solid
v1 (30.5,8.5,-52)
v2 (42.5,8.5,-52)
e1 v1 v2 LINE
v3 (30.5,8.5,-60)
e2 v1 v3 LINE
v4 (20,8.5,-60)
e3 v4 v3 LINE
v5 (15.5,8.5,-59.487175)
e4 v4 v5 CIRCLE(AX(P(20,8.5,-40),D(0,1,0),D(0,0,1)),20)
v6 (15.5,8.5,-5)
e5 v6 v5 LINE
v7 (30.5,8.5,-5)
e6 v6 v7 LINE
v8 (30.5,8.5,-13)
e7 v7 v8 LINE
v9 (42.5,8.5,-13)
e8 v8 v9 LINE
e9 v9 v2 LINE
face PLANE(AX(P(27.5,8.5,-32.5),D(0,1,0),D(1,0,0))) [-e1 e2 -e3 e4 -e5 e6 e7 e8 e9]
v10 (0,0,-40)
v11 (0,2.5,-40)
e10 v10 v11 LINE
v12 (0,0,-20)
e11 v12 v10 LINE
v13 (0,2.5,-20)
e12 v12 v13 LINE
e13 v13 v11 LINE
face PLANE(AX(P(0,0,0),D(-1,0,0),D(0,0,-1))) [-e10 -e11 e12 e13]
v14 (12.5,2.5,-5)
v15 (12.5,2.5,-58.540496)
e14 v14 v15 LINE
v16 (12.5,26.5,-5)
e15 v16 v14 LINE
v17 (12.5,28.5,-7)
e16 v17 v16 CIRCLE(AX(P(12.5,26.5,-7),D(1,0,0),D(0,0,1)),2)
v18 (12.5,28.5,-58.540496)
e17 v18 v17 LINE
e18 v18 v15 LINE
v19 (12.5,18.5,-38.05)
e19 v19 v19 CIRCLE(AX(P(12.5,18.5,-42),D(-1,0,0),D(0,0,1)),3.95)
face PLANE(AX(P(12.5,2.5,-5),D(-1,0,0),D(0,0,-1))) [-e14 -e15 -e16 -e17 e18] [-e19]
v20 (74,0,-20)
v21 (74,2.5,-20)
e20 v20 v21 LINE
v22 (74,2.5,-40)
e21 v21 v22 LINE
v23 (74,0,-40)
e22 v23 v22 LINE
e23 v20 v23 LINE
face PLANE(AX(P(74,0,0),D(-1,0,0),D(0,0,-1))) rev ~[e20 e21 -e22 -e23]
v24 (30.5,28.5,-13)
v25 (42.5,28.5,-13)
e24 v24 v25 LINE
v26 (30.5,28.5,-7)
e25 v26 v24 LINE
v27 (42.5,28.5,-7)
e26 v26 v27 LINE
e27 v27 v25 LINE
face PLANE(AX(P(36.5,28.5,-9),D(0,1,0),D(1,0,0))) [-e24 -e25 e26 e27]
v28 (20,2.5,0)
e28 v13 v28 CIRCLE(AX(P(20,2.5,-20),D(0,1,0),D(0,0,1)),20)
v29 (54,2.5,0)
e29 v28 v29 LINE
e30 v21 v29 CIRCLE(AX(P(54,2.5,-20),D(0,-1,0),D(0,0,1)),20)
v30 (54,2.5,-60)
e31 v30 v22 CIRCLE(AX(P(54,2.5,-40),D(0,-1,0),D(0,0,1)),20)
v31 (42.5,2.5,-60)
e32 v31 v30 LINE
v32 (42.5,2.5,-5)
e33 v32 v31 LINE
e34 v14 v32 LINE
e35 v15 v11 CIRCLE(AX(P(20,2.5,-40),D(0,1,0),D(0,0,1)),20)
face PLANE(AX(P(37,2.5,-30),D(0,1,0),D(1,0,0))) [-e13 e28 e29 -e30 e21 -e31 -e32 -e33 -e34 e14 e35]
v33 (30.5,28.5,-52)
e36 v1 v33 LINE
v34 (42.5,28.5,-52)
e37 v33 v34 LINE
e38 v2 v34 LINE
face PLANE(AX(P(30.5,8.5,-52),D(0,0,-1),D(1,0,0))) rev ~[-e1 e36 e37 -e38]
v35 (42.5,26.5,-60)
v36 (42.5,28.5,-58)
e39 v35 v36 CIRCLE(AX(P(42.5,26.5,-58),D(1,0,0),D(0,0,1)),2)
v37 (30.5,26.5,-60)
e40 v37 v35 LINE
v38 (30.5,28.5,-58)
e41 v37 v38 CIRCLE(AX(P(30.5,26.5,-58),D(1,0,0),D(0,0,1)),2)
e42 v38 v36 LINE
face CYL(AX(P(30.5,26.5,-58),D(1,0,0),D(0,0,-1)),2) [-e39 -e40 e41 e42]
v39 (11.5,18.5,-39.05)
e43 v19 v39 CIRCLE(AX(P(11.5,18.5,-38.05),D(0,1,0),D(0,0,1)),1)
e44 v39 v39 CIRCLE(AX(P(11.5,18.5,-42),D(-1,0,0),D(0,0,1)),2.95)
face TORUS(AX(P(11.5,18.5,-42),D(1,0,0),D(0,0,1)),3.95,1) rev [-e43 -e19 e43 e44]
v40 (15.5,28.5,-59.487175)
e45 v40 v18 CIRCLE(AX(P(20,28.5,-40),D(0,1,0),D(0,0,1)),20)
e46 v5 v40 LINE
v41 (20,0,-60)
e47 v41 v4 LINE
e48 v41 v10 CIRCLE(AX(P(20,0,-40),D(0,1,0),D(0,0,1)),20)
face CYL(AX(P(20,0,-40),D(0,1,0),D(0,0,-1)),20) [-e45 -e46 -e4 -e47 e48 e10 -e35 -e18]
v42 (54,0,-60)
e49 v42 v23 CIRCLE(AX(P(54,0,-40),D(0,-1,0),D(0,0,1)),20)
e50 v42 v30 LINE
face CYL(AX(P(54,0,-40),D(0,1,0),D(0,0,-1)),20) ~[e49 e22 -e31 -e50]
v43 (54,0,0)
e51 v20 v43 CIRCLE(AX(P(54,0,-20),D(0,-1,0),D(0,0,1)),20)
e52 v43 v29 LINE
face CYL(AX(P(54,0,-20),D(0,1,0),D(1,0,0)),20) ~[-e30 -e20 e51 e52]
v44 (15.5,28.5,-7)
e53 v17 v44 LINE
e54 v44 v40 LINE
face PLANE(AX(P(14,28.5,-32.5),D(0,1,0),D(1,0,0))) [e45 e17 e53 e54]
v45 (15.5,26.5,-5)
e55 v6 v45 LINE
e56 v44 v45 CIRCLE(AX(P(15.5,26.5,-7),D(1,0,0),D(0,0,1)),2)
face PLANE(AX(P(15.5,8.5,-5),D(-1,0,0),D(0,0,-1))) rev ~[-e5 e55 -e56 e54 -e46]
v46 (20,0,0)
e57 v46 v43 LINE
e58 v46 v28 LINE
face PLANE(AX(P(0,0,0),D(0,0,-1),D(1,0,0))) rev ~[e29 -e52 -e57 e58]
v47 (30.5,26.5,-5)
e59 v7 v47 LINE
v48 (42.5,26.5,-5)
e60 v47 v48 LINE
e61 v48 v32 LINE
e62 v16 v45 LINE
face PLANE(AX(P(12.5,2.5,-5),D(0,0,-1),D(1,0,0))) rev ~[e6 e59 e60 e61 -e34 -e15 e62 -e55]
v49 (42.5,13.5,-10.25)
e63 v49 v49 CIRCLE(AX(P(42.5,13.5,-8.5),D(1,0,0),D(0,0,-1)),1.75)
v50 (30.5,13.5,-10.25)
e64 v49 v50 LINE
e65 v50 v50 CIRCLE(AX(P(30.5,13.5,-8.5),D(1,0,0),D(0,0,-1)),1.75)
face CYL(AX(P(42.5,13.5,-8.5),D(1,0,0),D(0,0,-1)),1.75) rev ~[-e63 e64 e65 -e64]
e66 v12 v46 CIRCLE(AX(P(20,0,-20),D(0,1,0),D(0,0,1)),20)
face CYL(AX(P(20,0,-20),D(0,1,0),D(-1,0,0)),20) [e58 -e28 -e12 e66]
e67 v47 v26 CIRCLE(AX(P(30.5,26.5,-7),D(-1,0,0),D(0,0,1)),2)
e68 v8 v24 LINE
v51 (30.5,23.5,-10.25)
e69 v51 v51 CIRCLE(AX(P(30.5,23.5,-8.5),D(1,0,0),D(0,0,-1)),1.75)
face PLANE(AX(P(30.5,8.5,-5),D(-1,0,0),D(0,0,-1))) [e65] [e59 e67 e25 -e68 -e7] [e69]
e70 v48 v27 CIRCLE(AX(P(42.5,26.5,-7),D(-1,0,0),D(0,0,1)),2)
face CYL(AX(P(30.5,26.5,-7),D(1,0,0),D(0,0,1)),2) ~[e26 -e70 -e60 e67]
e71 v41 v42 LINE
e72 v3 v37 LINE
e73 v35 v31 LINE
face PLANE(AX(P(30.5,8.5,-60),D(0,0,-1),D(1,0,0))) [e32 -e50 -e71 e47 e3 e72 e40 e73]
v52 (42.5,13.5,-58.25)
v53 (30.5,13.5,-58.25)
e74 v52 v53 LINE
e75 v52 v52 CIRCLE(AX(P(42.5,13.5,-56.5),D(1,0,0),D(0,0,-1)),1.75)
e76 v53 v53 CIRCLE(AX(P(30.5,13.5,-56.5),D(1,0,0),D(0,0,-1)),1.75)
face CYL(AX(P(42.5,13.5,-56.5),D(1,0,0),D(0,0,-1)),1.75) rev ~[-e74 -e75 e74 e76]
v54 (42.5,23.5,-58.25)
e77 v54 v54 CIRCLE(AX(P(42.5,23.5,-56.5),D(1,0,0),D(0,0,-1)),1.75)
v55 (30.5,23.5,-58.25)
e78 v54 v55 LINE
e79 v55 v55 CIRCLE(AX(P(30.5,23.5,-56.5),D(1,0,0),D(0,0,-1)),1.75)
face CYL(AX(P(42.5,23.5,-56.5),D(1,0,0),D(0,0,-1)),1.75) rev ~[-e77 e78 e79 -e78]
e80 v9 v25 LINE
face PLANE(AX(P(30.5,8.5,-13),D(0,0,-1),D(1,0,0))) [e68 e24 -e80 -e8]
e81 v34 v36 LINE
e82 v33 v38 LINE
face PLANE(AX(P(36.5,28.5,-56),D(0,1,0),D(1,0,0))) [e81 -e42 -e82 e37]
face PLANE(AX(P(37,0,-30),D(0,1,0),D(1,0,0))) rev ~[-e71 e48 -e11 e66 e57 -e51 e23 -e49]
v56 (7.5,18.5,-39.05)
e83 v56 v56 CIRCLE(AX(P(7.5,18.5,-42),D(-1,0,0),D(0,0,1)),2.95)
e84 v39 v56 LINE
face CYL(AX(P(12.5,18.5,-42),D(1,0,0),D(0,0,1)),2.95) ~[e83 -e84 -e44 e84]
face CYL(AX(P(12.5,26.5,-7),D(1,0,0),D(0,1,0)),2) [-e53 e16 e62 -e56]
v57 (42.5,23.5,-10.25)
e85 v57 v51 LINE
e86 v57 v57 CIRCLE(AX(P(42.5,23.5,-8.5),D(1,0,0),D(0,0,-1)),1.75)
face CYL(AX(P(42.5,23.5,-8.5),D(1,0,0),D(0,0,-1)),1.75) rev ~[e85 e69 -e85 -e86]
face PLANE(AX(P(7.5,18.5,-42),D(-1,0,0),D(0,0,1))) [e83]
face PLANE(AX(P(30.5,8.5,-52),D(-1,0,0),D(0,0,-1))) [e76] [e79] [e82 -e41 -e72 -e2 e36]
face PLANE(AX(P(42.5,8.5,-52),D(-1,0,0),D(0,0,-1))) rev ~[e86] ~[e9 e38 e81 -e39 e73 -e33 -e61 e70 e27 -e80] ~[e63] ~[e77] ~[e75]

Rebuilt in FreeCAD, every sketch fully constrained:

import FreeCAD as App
import Part
import Sketcher

V = App.Vector
Q = App.Units.Quantity


def edges_at(feature, points):
    """Names of the edges that pass closest to the given points."""
    edges = feature.Shape.Edges
    near = lambda p: min(range(len(edges)), key=lambda i: edges[i].distToShape(Part.Vertex(*p))[0])
    return sorted({f"Edge{near(p) + 1}" for p in points})

doc = App.newDocument("Part")
body = doc.addObject("PartDesign::Body", "Body")

# Sketch on XZ plane
sketch1 = body.newObject("Sketcher::SketchObject", "Sketch")
sketch1.AttachmentSupport = (doc.getObject("XZ_Plane"), [""])
sketch1.MapMode = "FlatFace"
sketch1.addGeometry(Part.LineSegment(V(0, -60, 0), V(0, 0, 0)), False)
sketch1.addGeometry(Part.LineSegment(V(0, 0, 0), V(74, 0, 0)), False)
sketch1.addGeometry(Part.LineSegment(V(74, 0, 0), V(74, -60, 0)), False)
sketch1.addGeometry(Part.LineSegment(V(74, -60, 0), V(0, -60, 0)), False)
sketch1.addConstraint(Sketcher.Constraint("Coincident", 0, 2, 1, 1))
sketch1.addConstraint(Sketcher.Constraint("Coincident", 1, 2, 2, 1))
sketch1.addConstraint(Sketcher.Constraint("Coincident", 2, 2, 3, 1))
sketch1.addConstraint(Sketcher.Constraint("Coincident", 3, 2, 0, 1))
sketch1.addConstraint(Sketcher.Constraint("Vertical", 0))
sketch1.addConstraint(Sketcher.Constraint("Horizontal", 1))
sketch1.addConstraint(Sketcher.Constraint("Vertical", 2))
sketch1.addConstraint(Sketcher.Constraint("Horizontal", 3))
sketch1.addConstraint(Sketcher.Constraint("Coincident", 0, 2, -1, 1))
sketch1.addConstraint(Sketcher.Constraint("DistanceX", 1, 1, 1, 2, Q("74 mm")))
sketch1.addConstraint(Sketcher.Constraint("DistanceY", 0, 1, 0, 2, Q("60 mm")))
pad1 = body.newObject("PartDesign::Pad", "Pad")
pad1.Profile = sketch1
pad1.Length = 2.5
pad1.Reversed = True

# Sketch on XZ plane
sketch2 = body.newObject("Sketcher::SketchObject", "Sketch001")
sketch2.AttachmentSupport = (doc.getObject("XZ_Plane"), [""])
sketch2.MapMode = "FlatFace"
sketch2.AttachmentOffset = App.Placement(V(0, 0, -2.5), App.Rotation())
sketch2.addGeometry(Part.LineSegment(V(12.5, -60, 0), V(12.5, -5, 0)), False)
sketch2.addGeometry(Part.LineSegment(V(12.5, -5, 0), V(42.5, -5, 0)), False)
sketch2.addGeometry(Part.LineSegment(V(42.5, -5, 0), V(42.5, -60, 0)), False)
sketch2.addGeometry(Part.LineSegment(V(42.5, -60, 0), V(12.5, -60, 0)), False)
sketch2.addConstraint(Sketcher.Constraint("Coincident", 0, 2, 1, 1))
sketch2.addConstraint(Sketcher.Constraint("Coincident", 1, 2, 2, 1))
sketch2.addConstraint(Sketcher.Constraint("Coincident", 2, 2, 3, 1))
sketch2.addConstraint(Sketcher.Constraint("Coincident", 3, 2, 0, 1))
sketch2.addConstraint(Sketcher.Constraint("Vertical", 0))
sketch2.addConstraint(Sketcher.Constraint("Horizontal", 1))
sketch2.addConstraint(Sketcher.Constraint("Vertical", 2))
sketch2.addConstraint(Sketcher.Constraint("Horizontal", 3))
sketch2.addConstraint(Sketcher.Constraint("DistanceX", 1, 1, 1, 2, Q("30 mm")))
sketch2.addConstraint(Sketcher.Constraint("DistanceY", 0, 1, 0, 2, Q("55 mm")))
sketch2.addConstraint(Sketcher.Constraint("DistanceY", 0, 2, -1, 1, Q("5 mm")))
sketch2.addConstraint(Sketcher.Constraint("DistanceX", -1, 1, 0, 2, Q("12.5 mm")))
pad2 = body.newObject("PartDesign::Pad", "Pad001")
pad2.Profile = sketch2
pad2.Length = 6
pad2.Reversed = True

# Sketch on XZ plane
sketch3 = body.newObject("Sketcher::SketchObject", "Sketch002")
sketch3.AttachmentSupport = (doc.getObject("XZ_Plane"), [""])
sketch3.MapMode = "FlatFace"
sketch3.AttachmentOffset = App.Placement(V(0, 0, -8.5), App.Rotation())
sketch3.addGeometry(Part.LineSegment(V(30.5, -60, 0), V(30.5, -52, 0)), False)
sketch3.addGeometry(Part.LineSegment(V(30.5, -52, 0), V(42.5, -52, 0)), False)
sketch3.addGeometry(Part.LineSegment(V(42.5, -52, 0), V(42.5, -60, 0)), False)
sketch3.addGeometry(Part.LineSegment(V(42.5, -60, 0), V(30.5, -60, 0)), False)
sketch3.addGeometry(Part.LineSegment(V(12.5, -60, 0), V(12.5, -5, 0)), False)
sketch3.addGeometry(Part.LineSegment(V(12.5, -5, 0), V(15.5, -5, 0)), False)
sketch3.addGeometry(Part.LineSegment(V(15.5, -5, 0), V(15.5, -60, 0)), False)
sketch3.addGeometry(Part.LineSegment(V(15.5, -60, 0), V(12.5, -60, 0)), False)
sketch3.addGeometry(Part.LineSegment(V(30.5, -13, 0), V(30.5, -5, 0)), False)
sketch3.addGeometry(Part.LineSegment(V(30.5, -5, 0), V(42.5, -5, 0)), False)
sketch3.addGeometry(Part.LineSegment(V(42.5, -5, 0), V(42.5, -13, 0)), False)
sketch3.addGeometry(Part.LineSegment(V(42.5, -13, 0), V(30.5, -13, 0)), False)
sketch3.addConstraint(Sketcher.Constraint("Coincident", 0, 2, 1, 1))
sketch3.addConstraint(Sketcher.Constraint("Coincident", 1, 2, 2, 1))
sketch3.addConstraint(Sketcher.Constraint("Coincident", 2, 2, 3, 1))
sketch3.addConstraint(Sketcher.Constraint("Coincident", 3, 2, 0, 1))
sketch3.addConstraint(Sketcher.Constraint("Coincident", 4, 2, 5, 1))
sketch3.addConstraint(Sketcher.Constraint("Coincident", 5, 2, 6, 1))
sketch3.addConstraint(Sketcher.Constraint("Coincident", 6, 2, 7, 1))
sketch3.addConstraint(Sketcher.Constraint("Coincident", 7, 2, 4, 1))
sketch3.addConstraint(Sketcher.Constraint("Coincident", 8, 2, 9, 1))
sketch3.addConstraint(Sketcher.Constraint("Coincident", 9, 2, 10, 1))
sketch3.addConstraint(Sketcher.Constraint("Coincident", 10, 2, 11, 1))
sketch3.addConstraint(Sketcher.Constraint("Coincident", 11, 2, 8, 1))
sketch3.addConstraint(Sketcher.Constraint("Vertical", 0))
sketch3.addConstraint(Sketcher.Constraint("Horizontal", 1))
sketch3.addConstraint(Sketcher.Constraint("Vertical", 2))
sketch3.addConstraint(Sketcher.Constraint("Horizontal", 3))
sketch3.addConstraint(Sketcher.Constraint("Vertical", 4))
sketch3.addConstraint(Sketcher.Constraint("Horizontal", 5))
sketch3.addConstraint(Sketcher.Constraint("Vertical", 6))
sketch3.addConstraint(Sketcher.Constraint("Horizontal", 7))
sketch3.addConstraint(Sketcher.Constraint("Vertical", 8))
sketch3.addConstraint(Sketcher.Constraint("Horizontal", 9))
sketch3.addConstraint(Sketcher.Constraint("Vertical", 10))
sketch3.addConstraint(Sketcher.Constraint("Horizontal", 11))
sketch3.addConstraint(Sketcher.Constraint("Horizontal", 3, 2, 6, 2))
sketch3.addConstraint(Sketcher.Constraint("Horizontal", 5, 2, 8, 2))
sketch3.addConstraint(Sketcher.Constraint("Vertical", 3, 2, 8, 2))
sketch3.addConstraint(Sketcher.Constraint("Vertical", 2, 2, 9, 2))
sketch3.addConstraint(Sketcher.Constraint("Equal", 2, 8))
sketch3.addConstraint(Sketcher.Constraint("DistanceX", 1, 1, 1, 2, Q("12 mm")))
sketch3.addConstraint(Sketcher.Constraint("DistanceX", 5, 1, 5, 2, Q("3 mm")))
sketch3.addConstraint(Sketcher.Constraint("DistanceY", 0, 1, 0, 2, Q("8 mm")))
sketch3.addConstraint(Sketcher.Constraint("DistanceY", 4, 1, 4, 2, Q("55 mm")))
sketch3.addConstraint(Sketcher.Constraint("DistanceY", 0, 2, -1, 1, Q("52 mm")))
sketch3.addConstraint(Sketcher.Constraint("DistanceX", 4, 2, 0, 2, Q("18 mm")))
sketch3.addConstraint(Sketcher.Constraint("DistanceX", -1, 1, 0, 2, Q("30.5 mm")))
pad3 = body.newObject("PartDesign::Pad", "Pad002")
pad3.Profile = sketch3
pad3.Length = 20
pad3.Reversed = True

# Sketch on YZ plane
sketch4 = body.newObject("Sketcher::SketchObject", "Sketch003")
sketch4.AttachmentSupport = (doc.getObject("YZ_Plane"), [""])
sketch4.MapMode = "FlatFace"
sketch4.AttachmentOffset = App.Placement(V(0, 0, 42.5), App.Rotation())
sketch4.addGeometry(Part.Circle(V(23.5, -8.5, 0), V(0, 0, 1), 1.75), False)
sketch4.addGeometry(Part.Circle(V(13.5, -8.5, 0), V(0, 0, 1), 1.75), False)
sketch4.addGeometry(Part.Circle(V(23.5, -56.5, 0), V(0, 0, 1), 1.75), False)
sketch4.addGeometry(Part.Circle(V(13.5, -56.5, 0), V(0, 0, 1), 1.75), False)
sketch4.addConstraint(Sketcher.Constraint("Equal", 0, 1))
sketch4.addConstraint(Sketcher.Constraint("Equal", 1, 2))
sketch4.addConstraint(Sketcher.Constraint("Equal", 2, 3))
sketch4.addConstraint(Sketcher.Constraint("Horizontal", 0, 3, 1, 3))
sketch4.addConstraint(Sketcher.Constraint("Horizontal", 2, 3, 3, 3))
sketch4.addConstraint(Sketcher.Constraint("Vertical", 0, 3, 2, 3))
sketch4.addConstraint(Sketcher.Constraint("Vertical", 1, 3, 3, 3))
sketch4.addConstraint(Sketcher.Constraint("Diameter", 0, Q("3.5 mm")))
sketch4.addConstraint(Sketcher.Constraint("DistanceX", 1, 3, 0, 3, Q("10 mm")))
sketch4.addConstraint(Sketcher.Constraint("DistanceY", 2, 3, 0, 3, Q("48 mm")))
sketch4.addConstraint(Sketcher.Constraint("DistanceX", -1, 1, 0, 3, Q("23.5 mm")))
sketch4.addConstraint(Sketcher.Constraint("DistanceY", 0, 3, -1, 1, Q("8.5 mm")))
pocket1 = body.newObject("PartDesign::Pocket", "Pocket")
pocket1.Profile = sketch4
pocket1.Length = 20

# Sketch on YZ plane
sketch5 = body.newObject("Sketcher::SketchObject", "Sketch004")
sketch5.AttachmentSupport = (doc.getObject("YZ_Plane"), [""])
sketch5.MapMode = "FlatFace"
sketch5.AttachmentOffset = App.Placement(V(0, 0, 12.5), App.Rotation())
sketch5.addGeometry(Part.Circle(V(18.5, -42, 0), V(0, 0, 1), 2.95), False)
sketch5.addConstraint(Sketcher.Constraint("Diameter", 0, Q("5.9 mm")))
sketch5.addConstraint(Sketcher.Constraint("DistanceY", 0, 3, -1, 1, Q("42 mm")))
sketch5.addConstraint(Sketcher.Constraint("DistanceX", -1, 1, 0, 3, Q("18.5 mm")))
pad4 = body.newObject("PartDesign::Pad", "Pad003")
pad4.Profile = sketch5
pad4.Length = 5
pad4.Reversed = True
doc.recompute()

fillet = body.newObject("PartDesign::Fillet", "Fillet")
fillet.Base = (pad4, edges_at(pad4, [(12.5, 18.5, -44.95)]))
fillet.Radius = 1
doc.recompute()

fillet2 = body.newObject("PartDesign::Fillet", "Fillet001")
fillet2.Base = (fillet, edges_at(fillet, [
    (74, 1.25, -60),
    (74, 1.25, 0),
    (0, 1.25, 0),
    (0, 1.25, -60),
]))
fillet2.Radius = 20
doc.recompute()

fillet3 = body.newObject("PartDesign::Fillet", "Fillet002")
fillet3.Base = (fillet2, edges_at(fillet2, [(36.5, 28.5, -60), (14, 28.5, -5), (36.5, 28.5, -5)]))
fillet3.Radius = 2

doc.recompute()
